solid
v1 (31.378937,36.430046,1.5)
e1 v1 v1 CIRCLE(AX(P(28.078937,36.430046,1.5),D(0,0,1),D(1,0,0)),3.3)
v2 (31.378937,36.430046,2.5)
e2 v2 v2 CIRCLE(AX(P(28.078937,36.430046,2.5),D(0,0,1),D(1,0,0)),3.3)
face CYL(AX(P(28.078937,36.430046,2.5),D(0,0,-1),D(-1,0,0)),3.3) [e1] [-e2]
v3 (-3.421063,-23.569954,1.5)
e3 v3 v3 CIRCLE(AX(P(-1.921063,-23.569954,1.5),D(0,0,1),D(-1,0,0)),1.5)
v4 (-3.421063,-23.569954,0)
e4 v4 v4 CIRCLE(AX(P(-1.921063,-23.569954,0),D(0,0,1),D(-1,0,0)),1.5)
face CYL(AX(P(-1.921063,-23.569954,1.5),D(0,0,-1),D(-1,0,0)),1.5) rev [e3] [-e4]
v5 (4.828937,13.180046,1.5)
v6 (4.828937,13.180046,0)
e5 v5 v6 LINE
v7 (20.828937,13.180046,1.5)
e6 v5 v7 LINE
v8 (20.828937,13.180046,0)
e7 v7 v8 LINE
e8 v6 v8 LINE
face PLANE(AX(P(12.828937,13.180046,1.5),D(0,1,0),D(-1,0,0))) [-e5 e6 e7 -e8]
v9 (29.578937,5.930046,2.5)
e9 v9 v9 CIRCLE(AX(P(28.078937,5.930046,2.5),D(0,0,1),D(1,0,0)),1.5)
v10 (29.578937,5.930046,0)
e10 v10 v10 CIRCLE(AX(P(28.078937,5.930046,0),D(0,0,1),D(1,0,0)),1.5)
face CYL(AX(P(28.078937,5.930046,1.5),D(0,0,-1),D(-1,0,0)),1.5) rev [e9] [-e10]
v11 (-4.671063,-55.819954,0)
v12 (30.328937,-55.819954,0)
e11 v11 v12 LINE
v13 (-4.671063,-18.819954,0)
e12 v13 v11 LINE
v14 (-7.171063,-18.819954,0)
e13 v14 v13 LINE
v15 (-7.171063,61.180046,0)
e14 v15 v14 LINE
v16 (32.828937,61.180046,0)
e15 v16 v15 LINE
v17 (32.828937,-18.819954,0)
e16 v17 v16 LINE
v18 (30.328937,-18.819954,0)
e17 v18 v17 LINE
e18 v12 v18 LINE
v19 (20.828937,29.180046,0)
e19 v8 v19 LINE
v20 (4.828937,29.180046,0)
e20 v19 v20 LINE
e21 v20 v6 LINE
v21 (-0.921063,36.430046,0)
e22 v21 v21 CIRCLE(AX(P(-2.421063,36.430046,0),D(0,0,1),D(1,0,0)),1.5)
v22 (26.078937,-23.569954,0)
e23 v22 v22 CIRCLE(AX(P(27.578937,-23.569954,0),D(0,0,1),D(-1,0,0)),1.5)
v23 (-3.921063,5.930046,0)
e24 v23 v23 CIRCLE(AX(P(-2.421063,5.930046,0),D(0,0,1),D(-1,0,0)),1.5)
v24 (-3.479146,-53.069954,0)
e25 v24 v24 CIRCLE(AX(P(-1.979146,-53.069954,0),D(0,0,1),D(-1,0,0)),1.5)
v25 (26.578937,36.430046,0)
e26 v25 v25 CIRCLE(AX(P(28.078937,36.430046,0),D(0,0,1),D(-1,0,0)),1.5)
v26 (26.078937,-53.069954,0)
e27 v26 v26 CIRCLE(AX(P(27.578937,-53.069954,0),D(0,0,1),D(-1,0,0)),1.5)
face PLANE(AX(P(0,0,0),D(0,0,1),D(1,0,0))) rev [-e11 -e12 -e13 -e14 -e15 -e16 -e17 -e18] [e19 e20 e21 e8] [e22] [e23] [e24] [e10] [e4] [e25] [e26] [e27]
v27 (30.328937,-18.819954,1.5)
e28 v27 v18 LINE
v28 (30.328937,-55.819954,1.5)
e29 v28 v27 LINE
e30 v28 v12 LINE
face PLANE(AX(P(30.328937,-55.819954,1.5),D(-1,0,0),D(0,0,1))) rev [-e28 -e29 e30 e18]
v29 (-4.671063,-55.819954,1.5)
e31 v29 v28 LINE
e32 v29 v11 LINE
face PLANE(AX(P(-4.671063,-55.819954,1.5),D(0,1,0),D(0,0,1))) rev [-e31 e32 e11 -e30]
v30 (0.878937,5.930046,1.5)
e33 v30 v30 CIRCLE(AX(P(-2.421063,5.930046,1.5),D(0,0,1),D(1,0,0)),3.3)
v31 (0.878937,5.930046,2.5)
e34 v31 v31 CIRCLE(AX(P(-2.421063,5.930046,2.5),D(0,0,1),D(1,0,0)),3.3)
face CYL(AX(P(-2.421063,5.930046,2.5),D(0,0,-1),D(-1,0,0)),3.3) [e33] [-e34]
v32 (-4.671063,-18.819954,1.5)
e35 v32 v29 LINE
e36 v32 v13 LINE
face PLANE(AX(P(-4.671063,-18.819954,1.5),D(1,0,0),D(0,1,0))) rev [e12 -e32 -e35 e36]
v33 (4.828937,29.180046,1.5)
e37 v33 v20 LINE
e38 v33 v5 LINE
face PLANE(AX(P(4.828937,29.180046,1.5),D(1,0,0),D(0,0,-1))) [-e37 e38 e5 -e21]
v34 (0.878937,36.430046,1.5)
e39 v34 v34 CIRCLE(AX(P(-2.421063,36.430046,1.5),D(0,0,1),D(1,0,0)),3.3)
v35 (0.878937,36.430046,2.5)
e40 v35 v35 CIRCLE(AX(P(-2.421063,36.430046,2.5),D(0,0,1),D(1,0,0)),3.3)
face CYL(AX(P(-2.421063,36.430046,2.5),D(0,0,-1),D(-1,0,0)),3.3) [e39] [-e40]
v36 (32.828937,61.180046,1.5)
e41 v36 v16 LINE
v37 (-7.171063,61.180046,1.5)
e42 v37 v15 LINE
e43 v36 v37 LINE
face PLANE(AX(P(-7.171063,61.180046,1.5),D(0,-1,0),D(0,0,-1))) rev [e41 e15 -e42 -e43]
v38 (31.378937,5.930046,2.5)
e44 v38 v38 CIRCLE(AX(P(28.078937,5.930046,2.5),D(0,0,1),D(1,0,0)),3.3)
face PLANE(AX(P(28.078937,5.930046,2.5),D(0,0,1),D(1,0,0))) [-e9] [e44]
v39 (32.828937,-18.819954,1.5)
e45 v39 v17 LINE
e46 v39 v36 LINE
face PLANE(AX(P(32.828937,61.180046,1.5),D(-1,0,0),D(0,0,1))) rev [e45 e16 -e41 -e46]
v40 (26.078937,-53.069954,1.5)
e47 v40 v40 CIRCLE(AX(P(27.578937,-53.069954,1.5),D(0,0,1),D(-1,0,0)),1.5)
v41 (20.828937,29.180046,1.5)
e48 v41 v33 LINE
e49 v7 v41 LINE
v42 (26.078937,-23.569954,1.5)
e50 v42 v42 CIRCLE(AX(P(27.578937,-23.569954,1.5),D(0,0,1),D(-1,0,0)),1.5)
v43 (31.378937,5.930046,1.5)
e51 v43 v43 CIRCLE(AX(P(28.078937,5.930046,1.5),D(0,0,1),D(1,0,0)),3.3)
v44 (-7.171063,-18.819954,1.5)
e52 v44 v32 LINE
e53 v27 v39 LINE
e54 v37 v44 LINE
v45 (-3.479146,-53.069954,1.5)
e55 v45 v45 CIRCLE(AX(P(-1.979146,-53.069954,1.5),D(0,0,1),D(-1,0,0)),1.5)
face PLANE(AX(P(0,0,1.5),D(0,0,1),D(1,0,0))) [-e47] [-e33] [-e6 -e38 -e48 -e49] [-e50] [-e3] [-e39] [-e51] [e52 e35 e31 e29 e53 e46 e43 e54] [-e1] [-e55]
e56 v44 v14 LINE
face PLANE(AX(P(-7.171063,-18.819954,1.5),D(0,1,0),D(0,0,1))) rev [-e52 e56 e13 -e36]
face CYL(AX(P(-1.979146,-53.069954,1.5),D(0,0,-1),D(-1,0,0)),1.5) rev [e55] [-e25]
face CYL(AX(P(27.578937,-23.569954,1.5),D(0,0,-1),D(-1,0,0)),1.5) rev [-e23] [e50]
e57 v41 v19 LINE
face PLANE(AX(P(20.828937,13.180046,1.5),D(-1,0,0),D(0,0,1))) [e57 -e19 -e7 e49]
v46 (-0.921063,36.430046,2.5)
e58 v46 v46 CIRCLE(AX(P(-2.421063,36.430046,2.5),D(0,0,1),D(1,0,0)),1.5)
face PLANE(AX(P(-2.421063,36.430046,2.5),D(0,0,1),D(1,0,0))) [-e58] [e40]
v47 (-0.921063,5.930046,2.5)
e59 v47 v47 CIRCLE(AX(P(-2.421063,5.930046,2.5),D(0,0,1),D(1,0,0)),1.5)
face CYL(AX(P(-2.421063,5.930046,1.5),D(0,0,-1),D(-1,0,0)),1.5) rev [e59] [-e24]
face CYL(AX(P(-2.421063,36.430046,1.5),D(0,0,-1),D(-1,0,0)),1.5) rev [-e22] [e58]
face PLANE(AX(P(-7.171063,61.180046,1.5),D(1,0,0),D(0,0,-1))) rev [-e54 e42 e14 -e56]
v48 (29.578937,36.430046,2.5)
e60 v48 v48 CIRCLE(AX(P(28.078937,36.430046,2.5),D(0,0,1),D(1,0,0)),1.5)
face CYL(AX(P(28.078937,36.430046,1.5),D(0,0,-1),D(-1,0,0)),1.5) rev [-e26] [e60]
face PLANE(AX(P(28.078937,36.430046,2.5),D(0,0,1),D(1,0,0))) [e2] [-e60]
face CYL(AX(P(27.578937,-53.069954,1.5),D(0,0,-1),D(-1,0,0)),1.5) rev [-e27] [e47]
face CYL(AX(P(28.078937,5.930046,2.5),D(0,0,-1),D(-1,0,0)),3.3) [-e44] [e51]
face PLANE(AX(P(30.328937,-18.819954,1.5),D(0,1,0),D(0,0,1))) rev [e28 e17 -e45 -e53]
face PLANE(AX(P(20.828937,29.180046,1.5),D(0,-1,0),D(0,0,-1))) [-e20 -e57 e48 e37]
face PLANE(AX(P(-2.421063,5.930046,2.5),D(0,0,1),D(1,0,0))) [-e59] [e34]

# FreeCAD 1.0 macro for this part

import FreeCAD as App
import Part
import Sketcher

doc = App.newDocument("Part")
params = doc.addObject("Spreadsheet::Sheet", "Params")
for row, (alias, value) in enumerate([
    ("sketch1_diameter", "3 mm"),
    ("sketch1_width", "40 mm"),
    ("sketch1_width2", "35 mm"),
    ("sketch1_width3", "16 mm"),
    ("sketch1_height", "80 mm"),
    ("pad1_length", "1.5 mm"),
    ("sketch2_diameter", "3 mm"),
    ("sketch2_diameter2", "6.6 mm"),
    ("pad2_length", "1 mm"),
], start=1):
    params.set(f"A{row}", alias)
    params.set(f"B{row}", "=" + value)
    params.setAlias(f"B{row}", alias)

body = doc.addObject("PartDesign::Body", "Body")

# Sketch on XY plane
sketch1 = body.newObject("Sketcher::SketchObject", "Sketch")
sketch1.AttachmentSupport = (doc.getObject("XY_Plane"), [""])
sketch1.MapMode = "FlatFace"
sketch1.addGeometry(Part.LineSegment(App.Vector(32.8, 61.2, 0), App.Vector(-7.2, 61.2, 0)), False)
sketch1.addGeometry(Part.LineSegment(App.Vector(-7.2, 61.2, 0), App.Vector(-7.2, -18.8, 0)), False)
sketch1.addGeometry(Part.LineSegment(App.Vector(-7.2, -18.8, 0), App.Vector(-4.7, -18.8, 0)), False)
sketch1.addGeometry(Part.LineSegment(App.Vector(-4.7, -18.8, 0), App.Vector(-4.7, -55.8, 0)), False)
sketch1.addGeometry(Part.LineSegment(App.Vector(-4.7, -55.8, 0), App.Vector(30.3, -55.8, 0)), False)
sketch1.addGeometry(Part.LineSegment(App.Vector(30.3, -55.8, 0), App.Vector(30.3, -18.8, 0)), False)
sketch1.addGeometry(Part.LineSegment(App.Vector(30.3, -18.8, 0), App.Vector(32.8, -18.8, 0)), False)
sketch1.addGeometry(Part.LineSegment(App.Vector(32.8, -18.8, 0), App.Vector(32.8, 61.2, 0)), False)
sketch1.addGeometry(Part.Circle(App.Vector(27.6, -53.1, 0), App.Vector(0, 0, 1), 1.5), False)
sketch1.addGeometry(Part.Circle(App.Vector(27.6, -23.6, 0), App.Vector(0, 0, 1), 1.5), False)
sketch1.addGeometry(Part.Circle(App.Vector(-2, -53.1, 0), App.Vector(0, 0, 1), 1.5), False)
sketch1.addGeometry(Part.Circle(App.Vector(-1.9, -23.6, 0), App.Vector(0, 0, 1), 1.5), False)
sketch1.addGeometry(Part.Circle(App.Vector(28.1, 5.9, 0), App.Vector(0, 0, 1), 1.5), False)
sketch1.addGeometry(Part.Circle(App.Vector(28.1, 36.4, 0), App.Vector(0, 0, 1), 1.5), False)
sketch1.addGeometry(Part.Circle(App.Vector(-2.4, 5.9, 0), App.Vector(0, 0, 1), 1.5), False)
sketch1.addGeometry(Part.LineSegment(App.Vector(4.8, 13.2, 0), App.Vector(4.8, 29.2, 0)), False)
sketch1.addGeometry(Part.LineSegment(App.Vector(4.8, 29.2, 0), App.Vector(20.8, 29.2, 0)), False)
sketch1.addGeometry(Part.LineSegment(App.Vector(20.8, 29.2, 0), App.Vector(20.8, 13.2, 0)), False)
sketch1.addGeometry(Part.LineSegment(App.Vector(20.8, 13.2, 0), App.Vector(4.8, 13.2, 0)), False)
sketch1.addGeometry(Part.Circle(App.Vector(-2.4, 36.4, 0), App.Vector(0, 0, 1), 1.5), False)
sketch1.addConstraint(Sketcher.Constraint("Coincident", 0, 2, 1, 1))
sketch1.addConstraint(Sketcher.Constraint("Coincident", 1, 2, 2, 1))
sketch1.addConstraint(Sketcher.Constraint("Coincident", 2, 2, 3, 1))
sketch1.addConstraint(Sketcher.Constraint("Coincident", 3, 2, 4, 1))
sketch1.addConstraint(Sketcher.Constraint("Coincident", 4, 2, 5, 1))
sketch1.addConstraint(Sketcher.Constraint("Coincident", 5, 2, 6, 1))
sketch1.addConstraint(Sketcher.Constraint("Coincident", 6, 2, 7, 1))
sketch1.addConstraint(Sketcher.Constraint("Coincident", 7, 2, 0, 1))
sketch1.addConstraint(Sketcher.Constraint("Coincident", 15, 2, 16, 1))
sketch1.addConstraint(Sketcher.Constraint("Coincident", 16, 2, 17, 1))
sketch1.addConstraint(Sketcher.Constraint("Coincident", 17, 2, 18, 1))
sketch1.addConstraint(Sketcher.Constraint("Coincident", 18, 2, 15, 1))
sketch1.addConstraint(Sketcher.Constraint("Horizontal", 0))
sketch1.addConstraint(Sketcher.Constraint("Vertical", 1))
sketch1.addConstraint(Sketcher.Constraint("Horizontal", 2))
sketch1.addConstraint(Sketcher.Constraint("Vertical", 3))
sketch1.addConstraint(Sketcher.Constraint("Horizontal", 4))
sketch1.addConstraint(Sketcher.Constraint("Vertical", 5))
sketch1.addConstraint(Sketcher.Constraint("Horizontal", 6))
sketch1.addConstraint(Sketcher.Constraint("Vertical", 7))
sketch1.addConstraint(Sketcher.Constraint("Vertical", 15))
sketch1.addConstraint(Sketcher.Constraint("Horizontal", 16))
sketch1.addConstraint(Sketcher.Constraint("Vertical", 17))
sketch1.addConstraint(Sketcher.Constraint("Horizontal", 18))
sketch1.addConstraint(Sketcher.Constraint("Equal", 8, 9))
sketch1.addConstraint(Sketcher.Constraint("Equal", 9, 10))
sketch1.addConstraint(Sketcher.Constraint("Equal", 10, 11))
sketch1.addConstraint(Sketcher.Constraint("Equal", 11, 12))
sketch1.addConstraint(Sketcher.Constraint("Equal", 12, 13))
sketch1.addConstraint(Sketcher.Constraint("Equal", 13, 14))
sketch1.addConstraint(Sketcher.Constraint("Equal", 14, 19))
sketch1.addConstraint(Sketcher.Constraint("Horizontal", 8, 3, 10, 3))
sketch1.addConstraint(Sketcher.Constraint("Horizontal", 9, 3, 11, 3))
sketch1.addConstraint(Sketcher.Constraint("Horizontal", 12, 3, 14, 3))
sketch1.addConstraint(Sketcher.Constraint("Horizontal", 13, 3, 19, 3))
sketch1.addConstraint(Sketcher.Constraint("Horizontal", 2, 2, 5, 2))
sketch1.addConstraint(Sketcher.Constraint("Vertical", 8, 3, 9, 3))
sketch1.addConstraint(Sketcher.Constraint("Vertical", 12, 3, 13, 3))
sketch1.addConstraint(Sketcher.Constraint("Vertical", 14, 3, 19, 3))
sketch1.addConstraint(Sketcher.Constraint("Equal", 2, 6))
sketch1.addConstraint(Sketcher.Constraint("Equal", 18, 15))
sketch1.addConstraint(Sketcher.Constraint("Diameter", 8, 3.0))
sketch1.addConstraint(Sketcher.Constraint("DistanceX", 0, 2, 0, 1, 40.0))
sketch1.addConstraint(Sketcher.Constraint("DistanceX", 4, 1, 4, 2, 35.0))
sketch1.addConstraint(Sketcher.Constraint("DistanceX", 16, 1, 16, 2, 16.0))
sketch1.addConstraint(Sketcher.Constraint("DistanceY", 1, 2, 1, 1, 80.0))
sketch1.addConstraint(Sketcher.Constraint("DistanceY", 3, 2, 3, 1, 37.0))
sketch1.addConstraint(Sketcher.Constraint("DistanceX", 11, 3, 12, 3, 30.0))
sketch1.addConstraint(Sketcher.Constraint("DistanceY", 8, 3, 12, 3, 59.0))
sketch1.addConstraint(Sketcher.Constraint("DistanceY", 9, 3, 13, 3, 60.0))
sketch1.addConstraint(Sketcher.Constraint("DistanceX", 14, 3, 9, 3, 30.0))
sketch1.addConstraint(Sketcher.Constraint("DistanceX", 0, 2, 15, 2, 12.0))
sketch1.addConstraint(Sketcher.Constraint("DistanceY", 15, 2, 0, 2, 32.0))
sketch1.addConstraint(Sketcher.Constraint("DistanceY", 8, 3, 9, 3, 29.5))
sketch1.addConstraint(Sketcher.Constraint("DistanceX", 11, 3, 9, 3, 29.5))
sketch1.addConstraint(Sketcher.Constraint("DistanceX", 0, 2, 19, 3, 4.75))
sketch1.addConstraint(Sketcher.Constraint("DistanceY", 19, 3, 0, 2, 24.75))
sketch1.addConstraint(Sketcher.Constraint("DistanceX", -1, 1, 8, 3, 27.578937))
sketch1.addConstraint(Sketcher.Constraint("DistanceY", 8, 3, -1, 1, 53.069954))
sketch1.addConstraint(Sketcher.Constraint("DistanceX", 10, 3, -1, 1, 1.979146))
sketch1.setExpression("Constraints[41]", "Params.sketch1_diameter")
sketch1.setExpression("Constraints[42]", "Params.sketch1_width")
sketch1.setExpression("Constraints[43]", "Params.sketch1_width2")
sketch1.setExpression("Constraints[44]", "Params.sketch1_width3")
sketch1.setExpression("Constraints[45]", "Params.sketch1_height")
pad1 = body.newObject("PartDesign::Pad", "Pad")
pad1.Profile = sketch1
pad1.setExpression("Length", "Params.pad1_length")

# Sketch on XY plane
sketch2 = body.newObject("Sketcher::SketchObject", "Sketch001")
sketch2.AttachmentSupport = (doc.getObject("XY_Plane"), [""])
sketch2.MapMode = "FlatFace"
sketch2.AttachmentOffset = App.Placement(App.Vector(0, 0, 1.5), App.Rotation())
sketch2.addGeometry(Part.Circle(App.Vector(-2.4, 36.4, 0), App.Vector(0, 0, 1), 3.3), False)
sketch2.addGeometry(Part.Circle(App.Vector(-2.4, 36.4, 0), App.Vector(0, 0, 1), 1.5), False)
sketch2.addGeometry(Part.Circle(App.Vector(28.1, 36.4, 0), App.Vector(0, 0, 1), 3.3), False)
sketch2.addGeometry(Part.Circle(App.Vector(28.1, 36.4, 0), App.Vector(0, 0, 1), 1.5), False)
sketch2.addGeometry(Part.Circle(App.Vector(-2.4, 5.9, 0), App.Vector(0, 0, 1), 3.3), False)
sketch2.addGeometry(Part.Circle(App.Vector(-2.4, 5.9, 0), App.Vector(0, 0, 1), 1.5), False)
sketch2.addGeometry(Part.Circle(App.Vector(28.1, 5.9, 0), App.Vector(0, 0, 1), 3.3), False)
sketch2.addGeometry(Part.Circle(App.Vector(28.1, 5.9, 0), App.Vector(0, 0, 1), 1.5), False)
sketch2.addConstraint(Sketcher.Constraint("Coincident", 1, 3, 0, 3))
sketch2.addConstraint(Sketcher.Constraint("Coincident", 3, 3, 2, 3))
sketch2.addConstraint(Sketcher.Constraint("Coincident", 5, 3, 4, 3))
sketch2.addConstraint(Sketcher.Constraint("Coincident", 7, 3, 6, 3))
sketch2.addConstraint(Sketcher.Constraint("Equal", 0, 2))
sketch2.addConstraint(Sketcher.Constraint("Equal", 1, 3))
sketch2.addConstraint(Sketcher.Constraint("Equal", 2, 4))
sketch2.addConstraint(Sketcher.Constraint("Equal", 3, 5))
sketch2.addConstraint(Sketcher.Constraint("Equal", 4, 6))
sketch2.addConstraint(Sketcher.Constraint("Equal", 5, 7))
sketch2.addConstraint(Sketcher.Constraint("Horizontal", 1, 3, 2, 3))
sketch2.addConstraint(Sketcher.Constraint("Horizontal", 5, 3, 6, 3))
sketch2.addConstraint(Sketcher.Constraint("Vertical", 1, 3, 4, 3))
sketch2.addConstraint(Sketcher.Constraint("Vertical", 3, 3, 6, 3))
sketch2.addConstraint(Sketcher.Constraint("Diameter", 1, 3.0))
sketch2.addConstraint(Sketcher.Constraint("Diameter", 0, 6.6))
sketch2.addConstraint(Sketcher.Constraint("DistanceX", 0, 3, 2, 3, 30.5))
sketch2.addConstraint(Sketcher.Constraint("DistanceY", 4, 3, 0, 3, 30.5))
sketch2.addConstraint(Sketcher.Constraint("DistanceX", 0, 3, -1, 1, 2.421063))
sketch2.addConstraint(Sketcher.Constraint("DistanceY", -1, 1, 0, 3, 36.430046))
sketch2.setExpression("Constraints[14]", "Params.sketch2_diameter")
sketch2.setExpression("Constraints[15]", "Params.sketch2_diameter2")
pad2 = body.newObject("PartDesign::Pad", "Pad001")
pad2.Profile = sketch2
pad2.setExpression("Length", "Params.pad2_length")

doc.recompute()
